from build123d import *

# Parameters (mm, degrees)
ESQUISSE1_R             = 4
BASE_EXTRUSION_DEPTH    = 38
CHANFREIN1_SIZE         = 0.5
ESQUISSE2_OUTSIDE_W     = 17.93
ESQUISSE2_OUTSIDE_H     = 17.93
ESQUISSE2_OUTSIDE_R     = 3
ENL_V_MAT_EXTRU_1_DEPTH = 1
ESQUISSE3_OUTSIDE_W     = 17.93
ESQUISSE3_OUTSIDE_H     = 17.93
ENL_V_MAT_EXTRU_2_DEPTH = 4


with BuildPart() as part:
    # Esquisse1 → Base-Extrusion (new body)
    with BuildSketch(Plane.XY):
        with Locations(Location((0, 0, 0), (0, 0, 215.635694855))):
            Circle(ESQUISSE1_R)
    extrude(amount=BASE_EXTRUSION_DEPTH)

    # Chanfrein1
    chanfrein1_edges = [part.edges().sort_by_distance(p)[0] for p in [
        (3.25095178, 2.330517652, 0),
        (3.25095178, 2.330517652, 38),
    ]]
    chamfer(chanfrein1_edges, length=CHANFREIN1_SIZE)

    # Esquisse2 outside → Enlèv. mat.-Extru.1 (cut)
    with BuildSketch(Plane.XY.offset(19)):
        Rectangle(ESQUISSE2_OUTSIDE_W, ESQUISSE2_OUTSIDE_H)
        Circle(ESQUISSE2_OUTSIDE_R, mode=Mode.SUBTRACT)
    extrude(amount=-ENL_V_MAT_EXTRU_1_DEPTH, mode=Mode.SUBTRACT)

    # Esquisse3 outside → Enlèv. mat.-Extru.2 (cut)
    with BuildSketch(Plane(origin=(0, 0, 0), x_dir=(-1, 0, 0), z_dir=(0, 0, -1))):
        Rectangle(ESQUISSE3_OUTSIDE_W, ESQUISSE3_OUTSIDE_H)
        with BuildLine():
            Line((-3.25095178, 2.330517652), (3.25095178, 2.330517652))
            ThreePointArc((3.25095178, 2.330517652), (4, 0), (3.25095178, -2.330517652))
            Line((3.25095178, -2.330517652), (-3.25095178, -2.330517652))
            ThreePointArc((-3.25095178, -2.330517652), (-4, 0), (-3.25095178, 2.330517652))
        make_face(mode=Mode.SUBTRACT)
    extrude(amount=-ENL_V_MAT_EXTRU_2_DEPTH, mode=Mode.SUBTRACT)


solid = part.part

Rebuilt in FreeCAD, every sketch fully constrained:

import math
import FreeCAD as App
import Part
import Sketcher

V = App.Vector


def edges_at(feature, points):
    """Names of the edges that pass closest to the given points."""
    edges = feature.Shape.Edges
    near = lambda p: min(range(len(edges)), key=lambda i: edges[i].distToShape(Part.Vertex(*p))[0])
    return sorted({f"Edge{near(p) + 1}" for p in points})


def add_polygon(sketch, points):
    """Adds a closed chain of lines whose ends are joined by coincident constraints."""
    first, n = sketch.GeometryCount, len(points)
    for a, b in zip(points, points[1:] + points[:1]):
        sketch.addGeometry(Part.LineSegment(App.Vector(*a, 0), App.Vector(*b, 0)), False)
    for i in range(n):
        sketch.addConstraint(Sketcher.Constraint("Coincident", first + i, 2, first + (i + 1) % n, 1))

doc = App.newDocument("Part")
body = doc.addObject("PartDesign::Body", "Body")

# Sketch on XY plane
sketch1 = doc.addObject("Sketcher::SketchObject", "Sketch")
body.addObject(sketch1)
sketch1.AttachmentSupport = (doc.XY_Plane, [""])
sketch1.MapMode = "FlatFace"
sketch1.addGeometry(Part.Circle(V(0, 0, 0), V(0, 0, 1), 4), False)
sketch1.addConstraint([
    Sketcher.Constraint("Coincident", 0, 3, -1, 1),
    Sketcher.Constraint("Diameter", 0, 8.0),
])
pad1 = doc.addObject("PartDesign::Pad", "Pad")
body.addObject(pad1)
pad1.Profile = sketch1
pad1.Length = 38
doc.recompute()

chamfer = doc.addObject("PartDesign::Chamfer", "Chamfer")
body.addObject(chamfer)
chamfer.Base = (pad1, edges_at(pad1, [(3.251, 2.331, 0), (3.251, 2.331, 38)]))
chamfer.Size = 0.5

# Sketch on XY plane
sketch2 = doc.addObject("Sketcher::SketchObject", "Sketch001")
body.addObject(sketch2)
sketch2.AttachmentSupport = (doc.XY_Plane, [""])
sketch2.MapMode = "FlatFace"
sketch2.AttachmentOffset = App.Placement(V(0, 0, 19), App.Rotation())
add_polygon(sketch2, [(-9, 9), (-9, -9), (9, -9), (9, 9)])  # lines 0-3
sketch2.addGeometry(Part.Circle(V(0, 0, 0), V(0, 0, 1), 3), False)  # 4
sketch2.addConstraint([
    Sketcher.Constraint("Vertical", 0),
    Sketcher.Constraint("Horizontal", 1),
    Sketcher.Constraint("Vertical", 2),
    Sketcher.Constraint("Horizontal", 3),
    Sketcher.Constraint("Coincident", 4, 3, -1, 1),
    Sketcher.Constraint("Symmetric", 0, 2, 2, 2, -1, 1),
    Sketcher.Constraint("Equal", 3, 0),
    Sketcher.Constraint("Diameter", 4, 6.0),
    Sketcher.Constraint("DistanceX", 1, 1, 1, 2, 17.93),
])
pocket1 = doc.addObject("PartDesign::Pocket", "Pocket")
body.addObject(pocket1)
pocket1.Profile = sketch2
pocket1.Length = 1

# Sketch on XY plane
sketch3 = doc.addObject("Sketcher::SketchObject", "Sketch002")
body.addObject(sketch3)
sketch3.AttachmentSupport = (doc.XY_Plane, [""])
sketch3.MapMode = "FlatFace"
add_polygon(sketch3, [(9, 9), (9, -9), (-9, -9), (-9, 9)])  # lines 0-3
sketch3.addGeometry(Part.ArcOfCircle(Part.Circle(V(0, 0, 0), V(0, 0, 1), 4), math.radians(-36), math.radians(36)), False)  # 4
sketch3.addGeometry(Part.LineSegment(V(3.3, 2.3, 0), V(-3.3, 2.3, 0)), False)  # 5
sketch3.addGeometry(Part.ArcOfCircle(Part.Circle(V(0, 0, 0), V(0, 0, 1), 4), math.radians(144), math.radians(216)), False)  # 6
sketch3.addGeometry(Part.LineSegment(V(-3.3, -2.3, 0), V(3.3, -2.3, 0)), False)  # 7
sketch3.addConstraint([
    Sketcher.Constraint("Coincident", 4, 2, 5, 1),
    Sketcher.Constraint("Coincident", 5, 2, 6, 1),
    Sketcher.Constraint("Coincident", 6, 2, 7, 1),
    Sketcher.Constraint("Coincident", 7, 2, 4, 1),
    Sketcher.Constraint("Vertical", 0),
    Sketcher.Constraint("Horizontal", 1),
    Sketcher.Constraint("Vertical", 2),
    Sketcher.Constraint("Horizontal", 3),
    Sketcher.Constraint("Horizontal", 5),
    Sketcher.Constraint("Horizontal", 7),
    Sketcher.Constraint("Coincident", 4, 3, -1, 1),
    Sketcher.Constraint("Coincident", 6, 3, -1, 1),
    Sketcher.Constraint("Equal", 4, 6),
    Sketcher.Constraint("Symmetric", 0, 2, 2, 2, -1, 1),
    Sketcher.Constraint("Vertical", 5, 2, 6, 2),
    Sketcher.Constraint("Equal", 3, 0),
    Sketcher.Constraint("Radius", 4, 4.0),
    Sketcher.Constraint("DistanceX", 1, 2, 1, 1, 17.93),
    Sketcher.Constraint("DistanceX", 5, 2, 5, 1, 6.501904),
])
pocket2 = doc.addObject("PartDesign::Pocket", "Pocket001")
body.addObject(pocket2)
pocket2.Profile = sketch3
pocket2.Length = 4
pocket2.Reversed = True

doc.recompute()
